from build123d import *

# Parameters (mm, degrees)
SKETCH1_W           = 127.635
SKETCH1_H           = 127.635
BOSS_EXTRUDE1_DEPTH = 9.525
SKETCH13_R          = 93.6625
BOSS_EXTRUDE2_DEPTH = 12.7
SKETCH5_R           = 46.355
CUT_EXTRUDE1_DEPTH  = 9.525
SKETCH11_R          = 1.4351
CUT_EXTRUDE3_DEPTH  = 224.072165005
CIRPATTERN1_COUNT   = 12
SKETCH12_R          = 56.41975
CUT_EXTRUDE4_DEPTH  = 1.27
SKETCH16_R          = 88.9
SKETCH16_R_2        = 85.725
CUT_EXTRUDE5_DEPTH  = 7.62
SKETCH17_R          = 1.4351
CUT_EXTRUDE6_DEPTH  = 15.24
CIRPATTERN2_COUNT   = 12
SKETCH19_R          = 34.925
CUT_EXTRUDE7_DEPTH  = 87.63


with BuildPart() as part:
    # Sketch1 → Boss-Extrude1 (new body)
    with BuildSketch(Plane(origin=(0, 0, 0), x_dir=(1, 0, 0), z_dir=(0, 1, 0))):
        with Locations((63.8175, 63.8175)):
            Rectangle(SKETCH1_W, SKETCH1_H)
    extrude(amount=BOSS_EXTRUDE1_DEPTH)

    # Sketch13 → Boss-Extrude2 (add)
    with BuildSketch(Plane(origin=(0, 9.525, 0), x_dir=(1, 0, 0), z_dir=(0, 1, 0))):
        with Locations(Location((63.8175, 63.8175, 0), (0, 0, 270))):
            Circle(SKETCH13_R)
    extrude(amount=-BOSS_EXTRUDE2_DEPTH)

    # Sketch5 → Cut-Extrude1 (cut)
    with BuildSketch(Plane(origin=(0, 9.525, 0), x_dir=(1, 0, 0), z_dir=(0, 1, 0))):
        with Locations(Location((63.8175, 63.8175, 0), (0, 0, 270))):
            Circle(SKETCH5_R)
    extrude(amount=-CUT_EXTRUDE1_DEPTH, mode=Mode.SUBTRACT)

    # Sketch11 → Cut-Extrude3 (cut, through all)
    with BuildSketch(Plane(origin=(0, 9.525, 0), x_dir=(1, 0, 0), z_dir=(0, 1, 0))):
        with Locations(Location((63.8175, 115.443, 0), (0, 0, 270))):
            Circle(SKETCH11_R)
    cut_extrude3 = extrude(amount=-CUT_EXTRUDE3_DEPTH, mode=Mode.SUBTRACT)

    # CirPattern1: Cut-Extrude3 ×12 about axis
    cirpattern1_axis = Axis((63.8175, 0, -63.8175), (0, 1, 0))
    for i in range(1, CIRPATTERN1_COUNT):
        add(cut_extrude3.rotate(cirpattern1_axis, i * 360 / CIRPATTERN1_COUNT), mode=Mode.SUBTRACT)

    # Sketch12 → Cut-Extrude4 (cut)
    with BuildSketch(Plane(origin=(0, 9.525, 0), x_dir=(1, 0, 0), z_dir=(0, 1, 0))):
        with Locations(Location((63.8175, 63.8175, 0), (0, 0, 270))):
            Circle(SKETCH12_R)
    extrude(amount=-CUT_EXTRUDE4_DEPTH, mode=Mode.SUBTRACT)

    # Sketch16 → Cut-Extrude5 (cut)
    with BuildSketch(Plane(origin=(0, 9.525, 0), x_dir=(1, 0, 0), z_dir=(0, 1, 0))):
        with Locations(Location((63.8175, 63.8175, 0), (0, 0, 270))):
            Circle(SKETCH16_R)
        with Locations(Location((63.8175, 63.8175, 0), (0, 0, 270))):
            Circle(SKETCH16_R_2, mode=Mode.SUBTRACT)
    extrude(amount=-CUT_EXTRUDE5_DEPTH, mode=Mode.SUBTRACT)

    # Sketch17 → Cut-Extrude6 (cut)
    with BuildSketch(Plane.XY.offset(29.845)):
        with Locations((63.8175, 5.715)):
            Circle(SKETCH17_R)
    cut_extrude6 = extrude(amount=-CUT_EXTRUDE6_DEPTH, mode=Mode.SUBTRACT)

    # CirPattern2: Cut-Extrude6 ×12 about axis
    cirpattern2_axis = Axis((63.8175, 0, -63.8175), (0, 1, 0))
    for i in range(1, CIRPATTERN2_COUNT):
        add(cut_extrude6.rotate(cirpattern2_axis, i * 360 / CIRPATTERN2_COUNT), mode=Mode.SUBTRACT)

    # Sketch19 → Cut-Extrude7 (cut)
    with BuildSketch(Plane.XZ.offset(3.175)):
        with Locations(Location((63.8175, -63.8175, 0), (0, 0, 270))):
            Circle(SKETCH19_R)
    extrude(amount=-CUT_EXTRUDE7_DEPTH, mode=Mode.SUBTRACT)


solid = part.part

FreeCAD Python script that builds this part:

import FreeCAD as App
import Part
import Sketcher
from FreeCAD import Vector
Q = App.Units.Quantity


def add_polygon(sketch, points):
    """Adds a closed chain of lines whose ends are joined by coincident constraints."""
    first, n = sketch.GeometryCount, len(points)
    for a, b in zip(points, points[1:] + points[:1]):
        sketch.addGeometry(Part.LineSegment(App.Vector(*a, 0), App.Vector(*b, 0)), False)
    for i in range(n):
        sketch.addConstraint(Sketcher.Constraint("Coincident", first + i, 2, first + (i + 1) % n, 1))

doc = App.newDocument("Part")
body = doc.addObject("PartDesign::Body", "Body")

sketch1 = doc.addObject("Sketcher::SketchObject", "Sketch")
body.addObject(sketch1)
sketch1.AttachmentSupport = (doc.XZ_Plane, [""])
sketch1.MapMode = "FlatFace"
add_polygon(sketch1, [(0, -128), (0, 0), (128, 0), (128, -128)])
sketch1.addConstraint([
    Sketcher.Constraint("Vertical", 0),
    Sketcher.Constraint("Horizontal", 1),
    Sketcher.Constraint("Vertical", 2),
    Sketcher.Constraint("Horizontal", 3),
    Sketcher.Constraint("Coincident", 0, 2, -1, 1),
    Sketcher.Constraint("Equal", 3, 0),
    Sketcher.Constraint("DistanceX", 1, 1, 1, 2, Q("5.025 in")),
])
pad1 = doc.addObject("PartDesign::Pad", "Pad")
body.addObject(pad1)
pad1.Profile = sketch1
pad1.Length = Q("0.375 in")
pad1.Reversed = True

sketch2 = doc.addObject("Sketcher::SketchObject", "Sketch001")
body.addObject(sketch2)
sketch2.AttachmentSupport = (doc.XZ_Plane, [""])
sketch2.MapMode = "FlatFace"
sketch2.AttachmentOffset = App.Placement(Vector(0, 0, -0.375 * 25.4), App.Rotation())
sketch2.addGeometry(Part.Circle(Vector(64, -64, 0), Vector(0, 0, 1), 94), False)
sketch2.addConstraint([
    Sketcher.Constraint("Diameter", 0, Q("7.375 in")),
    Sketcher.Constraint("DistanceX", -1, 1, 0, 3, Q("2.5125 in")),
    Sketcher.Constraint("DistanceY", 0, 3, -1, 1, Q("2.5125 in")),
])
pad2 = doc.addObject("PartDesign::Pad", "Pad001")
body.addObject(pad2)
pad2.Profile = sketch2
pad2.Length = Q("0.5 in")

sketch3 = doc.addObject("Sketcher::SketchObject", "Sketch002")
body.addObject(sketch3)
sketch3.AttachmentSupport = (doc.XZ_Plane, [""])
sketch3.MapMode = "FlatFace"
sketch3.AttachmentOffset = App.Placement(Vector(0, 0, -0.375 * 25.4), App.Rotation())
sketch3.addGeometry(Part.Circle(Vector(64, -64, 0), Vector(0, 0, 1), 46), False)
sketch3.addConstraint([
    Sketcher.Constraint("Diameter", 0, Q("3.65 in")),
    Sketcher.Constraint("DistanceX", -1, 1, 0, 3, Q("2.5125 in")),
    Sketcher.Constraint("DistanceY", 0, 3, -1, 1, Q("2.5125 in")),
])
pocket1 = doc.addObject("PartDesign::Pocket", "Pocket")
body.addObject(pocket1)
pocket1.Profile = sketch3
pocket1.Length = Q("0.375 in")
pocket1.Reversed = True

sketch4 = doc.addObject("Sketcher::SketchObject", "Sketch003")
body.addObject(sketch4)
sketch4.AttachmentSupport = (doc.XZ_Plane, [""])
sketch4.MapMode = "FlatFace"
sketch4.AttachmentOffset = App.Placement(Vector(0, 0, -0.375 * 25.4), App.Rotation())
sketch4.addGeometry(Part.Circle(Vector(63.8, -115.4, 0), Vector(0, 0, 1), 1.4), False)
sketch4.addConstraint([
    Sketcher.Constraint("Diameter", 0, Q("0.113 in")),
    Sketcher.Constraint("DistanceY", 0, 3, -1, 1, Q("4.545 in")),
    Sketcher.Constraint("DistanceX", -1, 1, 0, 3, Q("2.5125 in")),
])
pocket2 = doc.addObject("PartDesign::Pocket", "Pocket001")
body.addObject(pocket2)
pocket2.Profile = sketch4
pocket2.Type = "ThroughAll"
pocket2.Reversed = True
doc.recompute()

datumline = doc.addObject("PartDesign::Line", "DatumLine")
body.addObject(datumline)
datumline.Placement = App.Placement(Vector(63.8175, 0, -63.8175), App.Rotation(Vector(0, 0, 1), Vector(0, 1, 0)))
polarpattern = doc.addObject("PartDesign::PolarPattern", "PolarPattern")
body.addObject(polarpattern)
polarpattern.Originals = [pocket2]
polarpattern.Axis = (datumline, [""])
polarpattern.Angle = 360
polarpattern.Occurrences = 12
body.Tip = polarpattern

sketch5 = doc.addObject("Sketcher::SketchObject", "Sketch004")
body.addObject(sketch5)
sketch5.AttachmentSupport = (doc.XZ_Plane, [""])
sketch5.MapMode = "FlatFace"
sketch5.AttachmentOffset = App.Placement(Vector(0, 0, -0.375 * 25.4), App.Rotation())
sketch5.addGeometry(Part.Circle(Vector(64, -64, 0), Vector(0, 0, 1), 56), False)
sketch5.addConstraint([
    Sketcher.Constraint("Diameter", 0, Q("4.4425 in")),
    Sketcher.Constraint("DistanceX", -1, 1, 0, 3, Q("2.5125 in")),
    Sketcher.Constraint("DistanceY", 0, 3, -1, 1, Q("2.5125 in")),
])
pocket3 = doc.addObject("PartDesign::Pocket", "Pocket002")
body.addObject(pocket3)
pocket3.Profile = sketch5
pocket3.Length = Q("0.05 in")
pocket3.Reversed = True

sketch6 = doc.addObject("Sketcher::SketchObject", "Sketch005")
body.addObject(sketch6)
sketch6.AttachmentSupport = (doc.XZ_Plane, [""])
sketch6.MapMode = "FlatFace"
sketch6.AttachmentOffset = App.Placement(Vector(0, 0, -0.375 * 25.4), App.Rotation())
sketch6.addGeometry([
    Part.Circle(Vector(64, -64, 0), Vector(0, 0, 1), 89),
    Part.Circle(Vector(64, -64, 0), Vector(0, 0, 1), 86),
], False)
sketch6.addConstraint([
    Sketcher.Constraint("Coincident", 1, 3, 0, 3),
    Sketcher.Constraint("Diameter", 0, Q("7 in")),
    Sketcher.Constraint("Diameter", 1, Q("6.75 in")),
    Sketcher.Constraint("DistanceX", -1, 1, 0, 3, Q("2.5125 in")),
    Sketcher.Constraint("DistanceY", 0, 3, -1, 1, Q("2.5125 in")),
])
pocket4 = doc.addObject("PartDesign::Pocket", "Pocket003")
body.addObject(pocket4)
pocket4.Profile = sketch6
pocket4.Length = Q("0.3 in")
pocket4.Reversed = True

sketch7 = doc.addObject("Sketcher::SketchObject", "Sketch006")
body.addObject(sketch7)
sketch7.AttachmentSupport = (doc.XY_Plane, [""])
sketch7.MapMode = "FlatFace"
sketch7.AttachmentOffset = App.Placement(Vector(0, 0, 1.175 * 25.4), App.Rotation())
sketch7.addGeometry(Part.Circle(Vector(63.8, 5.7, 0), Vector(0, 0, 1), 1.4), False)
sketch7.addConstraint([
    Sketcher.Constraint("Diameter", 0, Q("0.113 in")),
    Sketcher.Constraint("DistanceY", -1, 1, 0, 3, Q("0.225 in")),
    Sketcher.Constraint("DistanceX", -1, 1, 0, 3, Q("2.5125 in")),
])
pocket5 = doc.addObject("PartDesign::Pocket", "Pocket004")
body.addObject(pocket5)
pocket5.Profile = sketch7
pocket5.Length = Q("0.6 in")
doc.recompute()

datumline2 = doc.addObject("PartDesign::Line", "DatumLine001")
body.addObject(datumline2)
datumline2.Placement = App.Placement(Vector(63.8175, 0, -63.8175), App.Rotation(Vector(0, 0, 1), Vector(0, 1, 0)))
polarpattern2 = doc.addObject("PartDesign::PolarPattern", "PolarPattern001")
body.addObject(polarpattern2)
polarpattern2.Originals = [pocket5]
polarpattern2.Axis = (datumline2, [""])
polarpattern2.Angle = 360
polarpattern2.Occurrences = 12
body.Tip = polarpattern2

sketch8 = doc.addObject("Sketcher::SketchObject", "Sketch007")
body.addObject(sketch8)
sketch8.AttachmentSupport = (doc.XZ_Plane, [""])
sketch8.MapMode = "FlatFace"
sketch8.AttachmentOffset = App.Placement(Vector(0, 0, 0.125 * 25.4), App.Rotation())
sketch8.addGeometry(Part.Circle(Vector(64, -64, 0), Vector(0, 0, 1), 35), False)
sketch8.addConstraint([
    Sketcher.Constraint("Diameter", 0, Q("2.75 in")),
    Sketcher.Constraint("DistanceX", -1, 1, 0, 3, Q("2.5125 in")),
    Sketcher.Constraint("DistanceY", 0, 3, -1, 1, Q("2.5125 in")),
])
pocket6 = doc.addObject("PartDesign::Pocket", "Pocket005")
body.addObject(pocket6)
pocket6.Profile = sketch8
pocket6.Length = Q("3.45 in")

doc.recompute()
